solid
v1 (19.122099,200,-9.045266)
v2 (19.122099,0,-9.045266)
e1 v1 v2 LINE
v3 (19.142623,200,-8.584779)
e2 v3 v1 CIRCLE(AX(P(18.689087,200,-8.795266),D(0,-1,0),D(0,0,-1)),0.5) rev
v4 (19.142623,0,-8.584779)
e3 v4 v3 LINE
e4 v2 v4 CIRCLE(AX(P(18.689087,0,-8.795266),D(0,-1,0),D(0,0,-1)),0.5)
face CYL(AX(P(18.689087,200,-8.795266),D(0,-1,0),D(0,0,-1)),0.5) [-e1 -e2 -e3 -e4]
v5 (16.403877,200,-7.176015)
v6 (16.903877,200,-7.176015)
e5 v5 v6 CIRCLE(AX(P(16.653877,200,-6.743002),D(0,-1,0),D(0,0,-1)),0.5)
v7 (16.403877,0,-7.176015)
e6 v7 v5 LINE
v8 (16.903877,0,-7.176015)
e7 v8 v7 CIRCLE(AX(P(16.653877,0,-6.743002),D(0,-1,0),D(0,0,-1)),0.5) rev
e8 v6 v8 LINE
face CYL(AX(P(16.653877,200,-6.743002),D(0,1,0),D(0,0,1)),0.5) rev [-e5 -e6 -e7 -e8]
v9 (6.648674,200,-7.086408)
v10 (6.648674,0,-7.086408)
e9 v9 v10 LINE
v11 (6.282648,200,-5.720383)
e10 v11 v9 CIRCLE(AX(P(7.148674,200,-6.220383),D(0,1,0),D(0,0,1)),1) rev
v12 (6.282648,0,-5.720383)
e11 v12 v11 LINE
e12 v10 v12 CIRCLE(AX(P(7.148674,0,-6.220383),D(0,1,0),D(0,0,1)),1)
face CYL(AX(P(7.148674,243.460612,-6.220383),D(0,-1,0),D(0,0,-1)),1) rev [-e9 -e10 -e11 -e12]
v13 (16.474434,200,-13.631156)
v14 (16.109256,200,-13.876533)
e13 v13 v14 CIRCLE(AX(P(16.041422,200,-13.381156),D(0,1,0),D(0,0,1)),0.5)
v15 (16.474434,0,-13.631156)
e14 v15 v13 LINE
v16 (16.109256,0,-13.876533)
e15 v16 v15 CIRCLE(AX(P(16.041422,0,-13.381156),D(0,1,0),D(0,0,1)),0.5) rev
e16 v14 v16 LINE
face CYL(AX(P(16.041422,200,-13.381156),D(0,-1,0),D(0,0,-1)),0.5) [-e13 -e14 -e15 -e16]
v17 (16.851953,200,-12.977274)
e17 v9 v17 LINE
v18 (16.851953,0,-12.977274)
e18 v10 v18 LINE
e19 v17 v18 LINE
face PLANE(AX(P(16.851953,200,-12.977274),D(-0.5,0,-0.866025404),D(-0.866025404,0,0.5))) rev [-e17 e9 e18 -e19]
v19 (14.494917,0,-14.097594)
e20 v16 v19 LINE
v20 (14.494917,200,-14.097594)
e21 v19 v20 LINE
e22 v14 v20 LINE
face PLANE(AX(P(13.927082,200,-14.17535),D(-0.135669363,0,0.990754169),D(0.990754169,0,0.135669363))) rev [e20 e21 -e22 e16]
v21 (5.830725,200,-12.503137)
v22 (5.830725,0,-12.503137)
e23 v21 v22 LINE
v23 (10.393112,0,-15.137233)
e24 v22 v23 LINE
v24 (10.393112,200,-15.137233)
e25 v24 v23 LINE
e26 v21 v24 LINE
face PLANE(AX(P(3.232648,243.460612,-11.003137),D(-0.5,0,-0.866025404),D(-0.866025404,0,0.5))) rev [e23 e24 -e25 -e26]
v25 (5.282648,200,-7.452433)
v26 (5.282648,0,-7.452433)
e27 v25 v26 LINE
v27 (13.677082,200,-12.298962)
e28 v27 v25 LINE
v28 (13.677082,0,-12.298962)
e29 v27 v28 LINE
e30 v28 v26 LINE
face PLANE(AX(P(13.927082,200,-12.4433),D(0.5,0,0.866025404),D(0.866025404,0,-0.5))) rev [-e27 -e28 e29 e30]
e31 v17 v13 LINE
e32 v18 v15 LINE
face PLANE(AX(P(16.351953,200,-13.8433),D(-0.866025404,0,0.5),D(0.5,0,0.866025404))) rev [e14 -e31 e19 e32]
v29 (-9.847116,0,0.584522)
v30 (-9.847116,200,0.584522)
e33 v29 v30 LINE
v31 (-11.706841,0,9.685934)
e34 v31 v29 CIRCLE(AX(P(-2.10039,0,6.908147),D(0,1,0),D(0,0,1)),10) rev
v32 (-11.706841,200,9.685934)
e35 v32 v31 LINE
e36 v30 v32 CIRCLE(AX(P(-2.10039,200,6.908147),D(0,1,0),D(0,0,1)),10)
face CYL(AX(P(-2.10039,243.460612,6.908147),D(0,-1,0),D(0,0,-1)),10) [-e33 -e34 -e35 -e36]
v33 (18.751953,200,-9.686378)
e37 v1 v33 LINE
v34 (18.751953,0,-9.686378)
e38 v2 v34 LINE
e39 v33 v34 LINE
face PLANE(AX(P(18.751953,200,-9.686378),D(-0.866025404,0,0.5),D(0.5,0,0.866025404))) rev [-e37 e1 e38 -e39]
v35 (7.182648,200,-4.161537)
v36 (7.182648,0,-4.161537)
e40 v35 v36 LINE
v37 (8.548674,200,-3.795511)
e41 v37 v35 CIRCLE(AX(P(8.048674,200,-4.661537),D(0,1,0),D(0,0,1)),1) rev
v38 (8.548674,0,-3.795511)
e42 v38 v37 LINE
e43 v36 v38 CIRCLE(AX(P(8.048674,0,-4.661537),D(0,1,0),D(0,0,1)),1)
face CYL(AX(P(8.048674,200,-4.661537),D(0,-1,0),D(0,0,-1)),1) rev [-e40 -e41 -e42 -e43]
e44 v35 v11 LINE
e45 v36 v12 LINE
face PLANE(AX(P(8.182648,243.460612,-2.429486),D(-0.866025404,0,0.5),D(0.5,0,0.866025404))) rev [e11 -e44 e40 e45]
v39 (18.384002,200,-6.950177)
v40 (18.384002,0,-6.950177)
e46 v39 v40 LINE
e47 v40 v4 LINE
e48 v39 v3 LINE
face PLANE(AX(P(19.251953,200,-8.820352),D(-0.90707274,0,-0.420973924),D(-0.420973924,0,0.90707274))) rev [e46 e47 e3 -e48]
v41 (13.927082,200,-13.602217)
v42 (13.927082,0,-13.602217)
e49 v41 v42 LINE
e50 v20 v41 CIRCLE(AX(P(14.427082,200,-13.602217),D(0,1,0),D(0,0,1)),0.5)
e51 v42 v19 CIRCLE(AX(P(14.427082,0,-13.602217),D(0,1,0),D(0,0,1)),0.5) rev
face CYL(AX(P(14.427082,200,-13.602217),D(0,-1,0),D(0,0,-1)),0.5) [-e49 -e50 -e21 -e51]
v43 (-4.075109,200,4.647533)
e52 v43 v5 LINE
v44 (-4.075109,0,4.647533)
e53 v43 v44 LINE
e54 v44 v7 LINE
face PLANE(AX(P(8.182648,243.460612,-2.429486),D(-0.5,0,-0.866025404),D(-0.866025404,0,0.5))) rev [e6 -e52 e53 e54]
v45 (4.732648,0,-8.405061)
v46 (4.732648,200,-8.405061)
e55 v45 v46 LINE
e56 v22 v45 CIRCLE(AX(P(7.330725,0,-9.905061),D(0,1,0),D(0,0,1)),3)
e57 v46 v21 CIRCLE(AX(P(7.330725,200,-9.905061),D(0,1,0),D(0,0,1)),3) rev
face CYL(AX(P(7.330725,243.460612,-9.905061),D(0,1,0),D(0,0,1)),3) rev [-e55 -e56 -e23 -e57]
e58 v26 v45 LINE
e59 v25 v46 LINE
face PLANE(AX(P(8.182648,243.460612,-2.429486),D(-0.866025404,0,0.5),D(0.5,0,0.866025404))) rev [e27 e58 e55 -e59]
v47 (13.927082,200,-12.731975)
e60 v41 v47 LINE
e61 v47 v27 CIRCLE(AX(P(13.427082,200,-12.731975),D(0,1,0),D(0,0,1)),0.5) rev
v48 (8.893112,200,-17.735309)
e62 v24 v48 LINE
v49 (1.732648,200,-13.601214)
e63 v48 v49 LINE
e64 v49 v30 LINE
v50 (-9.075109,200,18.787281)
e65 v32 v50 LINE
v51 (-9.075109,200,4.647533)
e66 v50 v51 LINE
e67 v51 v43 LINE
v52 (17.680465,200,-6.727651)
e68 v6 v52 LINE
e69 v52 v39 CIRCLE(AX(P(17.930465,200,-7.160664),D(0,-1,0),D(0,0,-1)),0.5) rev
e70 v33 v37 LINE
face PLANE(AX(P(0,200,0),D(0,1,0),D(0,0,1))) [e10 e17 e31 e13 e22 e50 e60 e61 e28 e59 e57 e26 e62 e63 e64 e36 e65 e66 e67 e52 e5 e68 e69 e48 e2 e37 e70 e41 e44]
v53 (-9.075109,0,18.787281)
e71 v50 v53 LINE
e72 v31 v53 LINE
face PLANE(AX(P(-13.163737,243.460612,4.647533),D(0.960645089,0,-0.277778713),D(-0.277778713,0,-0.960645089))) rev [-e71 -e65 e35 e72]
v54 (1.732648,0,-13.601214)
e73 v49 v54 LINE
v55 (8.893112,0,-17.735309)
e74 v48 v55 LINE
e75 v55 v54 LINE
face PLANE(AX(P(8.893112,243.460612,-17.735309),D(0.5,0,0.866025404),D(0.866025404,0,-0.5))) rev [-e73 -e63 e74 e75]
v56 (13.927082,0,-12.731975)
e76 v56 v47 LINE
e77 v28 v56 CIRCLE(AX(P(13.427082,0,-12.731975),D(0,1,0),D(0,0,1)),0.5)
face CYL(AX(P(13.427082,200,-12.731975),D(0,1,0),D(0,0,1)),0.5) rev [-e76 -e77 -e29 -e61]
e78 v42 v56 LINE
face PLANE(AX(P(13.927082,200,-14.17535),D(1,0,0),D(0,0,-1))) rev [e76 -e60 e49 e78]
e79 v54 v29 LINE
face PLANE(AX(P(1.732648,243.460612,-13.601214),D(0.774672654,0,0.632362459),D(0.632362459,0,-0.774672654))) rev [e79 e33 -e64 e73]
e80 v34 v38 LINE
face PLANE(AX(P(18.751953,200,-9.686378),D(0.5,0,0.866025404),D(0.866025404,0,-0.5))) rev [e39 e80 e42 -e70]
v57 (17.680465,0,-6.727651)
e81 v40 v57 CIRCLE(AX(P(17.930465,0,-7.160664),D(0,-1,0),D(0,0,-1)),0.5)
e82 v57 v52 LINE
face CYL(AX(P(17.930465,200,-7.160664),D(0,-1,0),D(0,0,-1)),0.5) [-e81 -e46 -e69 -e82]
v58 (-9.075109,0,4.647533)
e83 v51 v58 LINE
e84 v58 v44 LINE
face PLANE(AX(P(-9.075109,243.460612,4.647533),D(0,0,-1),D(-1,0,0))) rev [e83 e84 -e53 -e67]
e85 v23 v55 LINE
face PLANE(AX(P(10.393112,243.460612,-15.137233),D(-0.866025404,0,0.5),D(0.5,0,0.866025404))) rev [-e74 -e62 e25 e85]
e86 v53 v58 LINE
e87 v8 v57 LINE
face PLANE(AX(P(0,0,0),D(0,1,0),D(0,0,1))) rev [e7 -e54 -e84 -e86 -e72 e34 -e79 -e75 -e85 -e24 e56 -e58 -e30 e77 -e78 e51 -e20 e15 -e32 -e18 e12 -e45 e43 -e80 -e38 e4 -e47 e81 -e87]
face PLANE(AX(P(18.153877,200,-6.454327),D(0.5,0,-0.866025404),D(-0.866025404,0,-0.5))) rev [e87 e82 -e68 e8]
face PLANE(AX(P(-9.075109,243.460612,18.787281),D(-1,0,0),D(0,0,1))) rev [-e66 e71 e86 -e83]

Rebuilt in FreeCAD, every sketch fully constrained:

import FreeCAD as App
import Part
import Sketcher
from FreeCAD import Vector
Q = App.Units.Quantity


def edges_at(feature, points):
    """Names of the edges that pass closest to the given points."""
    edges = feature.Shape.Edges
    near = lambda p: min(range(len(edges)), key=lambda i: edges[i].distToShape(Part.Vertex(*p))[0])
    return sorted({f"Edge{near(p) + 1}" for p in points})


def add_polygon(sketch, points):
    """Adds a closed chain of lines whose ends are joined by coincident constraints."""
    first, n = sketch.GeometryCount, len(points)
    for a, b in zip(points, points[1:] + points[:1]):
        sketch.addGeometry(Part.LineSegment(App.Vector(*a, 0), App.Vector(*b, 0)), False)
    for i in range(n):
        sketch.addConstraint(Sketcher.Constraint("Coincident", first + i, 2, first + (i + 1) % n, 1))

doc = App.newDocument("Part")
body = doc.addObject("PartDesign::Body", "Body")

# Sketch on XZ plane
sketch1 = doc.addObject("Sketcher::SketchObject", "Sketch")
body.addObject(sketch1)
sketch1.AttachmentSupport = (doc.XZ_Plane, [""])
sketch1.MapMode = "FlatFace"
add_polygon(sketch1, [(16.351953, -13.8433), (13.927082, -14.17535), (13.927082, -12.4433), (2.594699, -5.900545), (3.059579, -5.014243), (16.851953, -12.977274)])  # lines 0-5
sketch1.addConstraint(Sketcher.Constraint("Vertical", 1))
sketch1.addConstraint(Sketcher.Constraint("Parallel", 2, 4))
sketch1.addConstraint(Sketcher.Constraint("Perpendicular", 4, 5))
sketch1.addConstraint(Sketcher.Constraint("Angle", 2, Q("150 deg")))
sketch1.addConstraint(Sketcher.Constraint("Distance", 5, Q("1 mm")))
sketch1.addConstraint(Sketcher.Constraint("DistanceY", 5, 2, 1, 2, Q("1.4 mm")))
sketch1.addConstraint(Sketcher.Constraint("Distance", 0, Q("2.4475 mm")))
sketch1.addConstraint(Sketcher.Constraint("DistanceY", 1, 1, 1, 2, Q("1.732051 mm")))
sketch1.addConstraint(Sketcher.Constraint("DistanceY", 1, 2, -1, 1, Q("12.4433 mm")))
sketch1.addConstraint(Sketcher.Constraint("DistanceX", -1, 1, 2, 2, Q("2.594699 mm")))
sketch1.addConstraint(Sketcher.Constraint("Distance", 2, Q("13.085508 mm")))
sketch1.addConstraint(Sketcher.Constraint("Distance", 3, Q("1.000822 mm")))
pad1 = doc.addObject("PartDesign::Pad", "Pad")
body.addObject(pad1)
pad1.Profile = sketch1
pad1.Length = 200
pad1.Reversed = True
doc.recompute()

fillet = doc.addObject("PartDesign::Fillet", "Fillet")
body.addObject(fillet)
fillet.Base = (pad1, edges_at(pad1, [(13.927, 100, -14.175), (16.352, 100, -13.843), (13.927, 100, -12.443)]))
fillet.Radius = 0.5
body2 = doc.addObject("PartDesign::Body", "Body001")

# Sketch on XZ plane
sketch2 = doc.addObject("Sketcher::SketchObject", "Sketch001")
body2.addObject(sketch2)
sketch2.AttachmentSupport = (doc.getObject("XZ_Plane001"), [""])
sketch2.MapMode = "FlatFace"
add_polygon(sketch2, [(19.3, -8.8), (18.8, -9.7), (4.7, -1.6), (5.1, -0.7), (16.7, -7.3), (18.2, -6.5)])  # lines 0-5
sketch2.addConstraint(Sketcher.Constraint("Perpendicular", 0, 1))
sketch2.addConstraint(Sketcher.Constraint("Parallel", 1, 3))
sketch2.addConstraint(Sketcher.Constraint("Angle", 0, Q("-120 deg")))
sketch2.addConstraint(Sketcher.Constraint("Angle", 4, Q("30 deg")))
sketch2.addConstraint(Sketcher.Constraint("Distance", 0, Q("1 mm")))
sketch2.addConstraint(Sketcher.Constraint("DistanceX", 3, 2, 4, 2, Q("1.5 mm")))
sketch2.addConstraint(Sketcher.Constraint("DistanceY", 5, 2, 3, 2, Q("1.5 mm")))
sketch2.addConstraint(Sketcher.Constraint("DistanceY", 1, 2, 2, 2, Q("0.926601 mm")))
sketch2.addConstraint(Sketcher.Constraint("Distance", 1, Q("16.203712 mm")))
sketch2.addConstraint(Sketcher.Constraint("Distance", 5, Q("2.608419 mm")))
sketch2.addConstraint(Sketcher.Constraint("DistanceY", 1, 2, -1, 1, Q("1.584522 mm")))
sketch2.addConstraint(Sketcher.Constraint("DistanceX", -1, 1, 0, 2, Q("18.751953 mm")))
pad2 = doc.addObject("PartDesign::Pad", "Pad001")
body2.addObject(pad2)
pad2.Profile = sketch2
pad2.Length = 200
pad2.Reversed = True
doc.recompute()

fillet2 = doc.addObject("PartDesign::Fillet", "Fillet001")
body2.addObject(fillet2)
fillet2.Base = (pad2, edges_at(pad2, [(19.252, 100, -8.82), (18.154, 100, -6.454), (16.654, 100, -7.32)]))
fillet2.Radius = 0.5
body.AllowCompound = True
doc.recompute()

boolean = doc.addObject("PartDesign::Boolean", "Boolean")
body.addObject(boolean)
boolean.Type = "Fuse"
boolean.addObjects([body2])

# Sketch on XZ plane
sketch3 = doc.addObject("Sketcher::SketchObject", "Sketch002")
body.addObject(sketch3)
sketch3.AttachmentSupport = (doc.XZ_Plane, [""])
sketch3.MapMode = "FlatFace"
add_polygon(sketch3, [(8.2, -2.4), (3.2, -11), (10.4, -15.1), (8.9, -17.7), (1.7, -13.6), (-13.2, 4.6), (-9.1, 18.8), (-9.1, 4.6), (-4.1, 4.6)])  # lines 0-8
sketch3.addConstraint(Sketcher.Constraint("Vertical", 6))
sketch3.addConstraint(Sketcher.Constraint("Horizontal", 7))
sketch3.addConstraint(Sketcher.Constraint("Perpendicular", 0, 1))
sketch3.addConstraint(Sketcher.Constraint("Perpendicular", 1, 2))
sketch3.addConstraint(Sketcher.Constraint("Perpendicular", 2, 3))
sketch3.addConstraint(Sketcher.Constraint("Parallel", 3, 8))
sketch3.addConstraint(Sketcher.Constraint("Horizontal", 4, 2, 6, 2))
sketch3.addConstraint(Sketcher.Constraint("Equal", 1, 3))
sketch3.addConstraint(Sketcher.Constraint("DistanceX", 7, 1, 7, 2, Q("5 mm")))
sketch3.addConstraint(Sketcher.Constraint("Angle", 0, Q("-120 deg")))
sketch3.addConstraint(Sketcher.Constraint("Distance", 2, Q("3 mm")))
sketch3.addConstraint(Sketcher.Constraint("Distance", 0, Q("9.9 mm")))
sketch3.addConstraint(Sketcher.Constraint("DistanceY", 6, 2, 6, 1, Q("14.139748 mm")))
sketch3.addConstraint(Sketcher.Constraint("Distance", 1, Q("8.268191 mm")))
sketch3.addConstraint(Sketcher.Constraint("Distance", 4, Q("23.55672 mm")))
sketch3.addConstraint(Sketcher.Constraint("Distance", 8, Q("14.154038 mm")))
sketch3.addConstraint(Sketcher.Constraint("DistanceX", -1, 1, 0, 2, Q("3.232648 mm")))
sketch3.addConstraint(Sketcher.Constraint("DistanceY", 2, 2, -1, 1, Q("17.735309 mm")))
pad3 = doc.addObject("PartDesign::Pad", "Pad002")
body.addObject(pad3)
pad3.Profile = sketch3
pad3.Length = 200
pad3.Reversed = True
doc.recompute()

fillet3 = doc.addObject("PartDesign::Fillet", "Fillet002")
body.addObject(fillet3)
fillet3.Base = (pad3, edges_at(pad3, [(-13.164, 100, 4.648)]))
fillet3.Radius = 10
doc.recompute()

fillet4 = doc.addObject("PartDesign::Fillet", "Fillet003")
body.addObject(fillet4)
fillet4.Base = (fillet3, edges_at(fillet3, [(5.783, 100, -6.586), (7.683, 100, -3.296)]))
fillet4.Radius = 1
doc.recompute()

fillet5 = doc.addObject("PartDesign::Fillet", "Fillet004")
body.addObject(fillet5)
fillet5.Base = (fillet4, edges_at(fillet4, [(3.233, 100, -11.003)]))
fillet5.Radius = 3

doc.recompute()
